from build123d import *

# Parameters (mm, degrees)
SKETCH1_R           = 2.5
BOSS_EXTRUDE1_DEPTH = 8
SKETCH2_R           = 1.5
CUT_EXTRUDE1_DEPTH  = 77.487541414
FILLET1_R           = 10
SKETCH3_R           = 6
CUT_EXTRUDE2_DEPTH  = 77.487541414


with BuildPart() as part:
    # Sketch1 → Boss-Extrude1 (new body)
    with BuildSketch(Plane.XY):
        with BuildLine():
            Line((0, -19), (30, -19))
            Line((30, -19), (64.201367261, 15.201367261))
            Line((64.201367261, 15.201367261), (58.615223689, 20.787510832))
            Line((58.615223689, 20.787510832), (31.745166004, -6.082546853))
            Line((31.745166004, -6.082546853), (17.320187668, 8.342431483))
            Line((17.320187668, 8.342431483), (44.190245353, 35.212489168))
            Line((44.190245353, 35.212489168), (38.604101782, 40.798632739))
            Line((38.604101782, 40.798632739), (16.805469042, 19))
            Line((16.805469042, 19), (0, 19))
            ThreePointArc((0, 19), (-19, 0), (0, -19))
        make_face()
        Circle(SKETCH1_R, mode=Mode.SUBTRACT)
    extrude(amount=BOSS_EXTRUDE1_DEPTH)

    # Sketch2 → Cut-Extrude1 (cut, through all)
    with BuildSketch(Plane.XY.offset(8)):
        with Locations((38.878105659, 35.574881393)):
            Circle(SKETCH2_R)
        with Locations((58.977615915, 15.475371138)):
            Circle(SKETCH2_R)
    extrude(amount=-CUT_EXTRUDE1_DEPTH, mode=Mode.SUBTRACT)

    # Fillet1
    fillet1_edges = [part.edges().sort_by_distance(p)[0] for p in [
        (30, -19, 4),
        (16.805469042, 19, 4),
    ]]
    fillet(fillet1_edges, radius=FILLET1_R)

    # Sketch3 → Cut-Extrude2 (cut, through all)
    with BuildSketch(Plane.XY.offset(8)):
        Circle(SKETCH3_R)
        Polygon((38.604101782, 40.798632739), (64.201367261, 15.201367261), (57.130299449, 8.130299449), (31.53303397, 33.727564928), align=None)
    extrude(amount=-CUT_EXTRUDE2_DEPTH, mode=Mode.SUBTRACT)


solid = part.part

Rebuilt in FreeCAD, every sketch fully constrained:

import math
import FreeCAD as App
import Part
import Sketcher
Q = App.Units.Quantity


def edges_at(feature, points):
    """Names of the edges that pass closest to the given points."""
    edges = feature.Shape.Edges
    near = lambda p: min(range(len(edges)), key=lambda i: edges[i].distToShape(Part.Vertex(*p))[0])
    return sorted({f"Edge{near(p) + 1}" for p in points})


def add_polygon(sketch, points):
    """Adds a closed chain of lines whose ends are joined by coincident constraints."""
    first, n = sketch.GeometryCount, len(points)
    for a, b in zip(points, points[1:] + points[:1]):
        sketch.addGeometry(Part.LineSegment(App.Vector(*a, 0), App.Vector(*b, 0)), False)
    for i in range(n):
        sketch.addConstraint(Sketcher.Constraint("Coincident", first + i, 2, first + (i + 1) % n, 1))

doc = App.newDocument("Part")
params = doc.addObject("Spreadsheet::Sheet", "Params")
for row, (alias, value) in enumerate([
    ("sketch1_diameter", "5 mm"),
    ("sketch1_radius", "19 mm"),
    ("sketch1_width", "30 mm"),
    ("sketch1_length", "38 mm"),
    ("sketch1_length2", "7.9 mm"),
    ("pad1_length", "8 mm"),
    ("sketch2_diameter", "3 mm"),
    ("fillet_radius", "10 mm"),
    ("sketch3_diameter", "12 mm"),
    ("sketch3_length", "10 mm"),
    ("sketch3_length2", "36.2 mm"),
], start=1):
    params.set(f"A{row}", alias)
    params.set(f"B{row}", "=" + value)
    params.setAlias(f"B{row}", alias)

body = doc.addObject("PartDesign::Body", "Body")

sketch1 = body.newObject("Sketcher::SketchObject", "Sketch")
sketch1.AttachmentSupport = (doc.getObject("XY_Plane"), [""])
sketch1.MapMode = "FlatFace"
sketch1.addGeometry([
    Part.LineSegment(App.Vector(0, -19, 0), App.Vector(30, -19, 0)),
    Part.LineSegment(App.Vector(30, -19, 0), App.Vector(64.2, 15.2, 0)),
    Part.LineSegment(App.Vector(64.2, 15.2, 0), App.Vector(58.6, 20.8, 0)),
    Part.LineSegment(App.Vector(58.6, 20.8, 0), App.Vector(31.7, -6.1, 0)),
    Part.LineSegment(App.Vector(31.7, -6.1, 0), App.Vector(17.3, 8.3, 0)),
    Part.LineSegment(App.Vector(17.3, 8.3, 0), App.Vector(44.2, 35.2, 0)),
    Part.LineSegment(App.Vector(44.2, 35.2, 0), App.Vector(38.6, 40.8, 0)),
    Part.LineSegment(App.Vector(38.6, 40.8, 0), App.Vector(16.8, 19, 0)),
    Part.LineSegment(App.Vector(16.8, 19, 0), App.Vector(0, 19, 0)),
    Part.ArcOfCircle(Part.Circle(App.Vector(0, 0, 0), App.Vector(0, 0, 1), 19), math.radians(90), math.radians(270)),
    Part.Circle(App.Vector(0, 0, 0), App.Vector(0, 0, 1), 2.5),
], False)
sketch1.addConstraint([
    Sketcher.Constraint("Coincident", 0, 2, 1, 1),
    Sketcher.Constraint("Coincident", 1, 2, 2, 1),
    Sketcher.Constraint("Coincident", 2, 2, 3, 1),
    Sketcher.Constraint("Coincident", 3, 2, 4, 1),
    Sketcher.Constraint("Coincident", 4, 2, 5, 1),
    Sketcher.Constraint("Coincident", 5, 2, 6, 1),
    Sketcher.Constraint("Coincident", 6, 2, 7, 1),
    Sketcher.Constraint("Coincident", 7, 2, 8, 1),
    Sketcher.Constraint("Tangent", 8, 2, 9, 1),
    Sketcher.Constraint("Tangent", 9, 2, 0, 1),
    Sketcher.Constraint("Horizontal", 0),
    Sketcher.Constraint("Horizontal", 8),
    Sketcher.Constraint("Coincident", 9, 3, -1, 1),
    Sketcher.Constraint("Coincident", 10, 3, -1, 1),
    Sketcher.Constraint("Perpendicular", 1, 2),
    Sketcher.Constraint("Perpendicular", 2, 3),
    Sketcher.Constraint("Perpendicular", 3, 4),
    Sketcher.Constraint("Perpendicular", 4, 5),
    Sketcher.Constraint("Perpendicular", 5, 6),
    Sketcher.Constraint("Perpendicular", 6, 7),
    Sketcher.Constraint("Equal", 3, 5),
    Sketcher.Constraint("Equal", 2, 6),
    Sketcher.Constraint("Diameter", 10, Q("5 mm")),
    Sketcher.Constraint("Radius", 9, Q("19 mm")),
    Sketcher.Constraint("DistanceX", 0, 1, 0, 2, Q("30 mm")),
    Sketcher.Constraint("Angle", 1, Q("45 deg")),
    Sketcher.Constraint("Distance", 3, Q("38 mm")),
    Sketcher.Constraint("Distance", 2, Q("7.9 mm")),
    Sketcher.Constraint("Distance", 4, Q("20.4 mm")),
    Sketcher.Constraint("DistanceX", -1, 1, 6, 2, Q("38.604102 mm")),
])
sketch1.setExpression("Constraints[22]", "Params.sketch1_diameter")
sketch1.setExpression("Constraints[23]", "Params.sketch1_radius")
sketch1.setExpression("Constraints[24]", "Params.sketch1_width")
sketch1.setExpression("Constraints[26]", "Params.sketch1_length")
sketch1.setExpression("Constraints[27]", "Params.sketch1_length2")
pad1 = body.newObject("PartDesign::Pad", "Pad")
pad1.Profile = sketch1
pad1.setExpression("Length", "Params.pad1_length")

sketch2 = body.newObject("Sketcher::SketchObject", "Sketch001")
sketch2.AttachmentSupport = (doc.getObject("XY_Plane"), [""])
sketch2.MapMode = "FlatFace"
sketch2.AttachmentOffset = App.Placement(App.Vector(0, 0, 8), App.Rotation())
sketch2.addGeometry([
    Part.Circle(App.Vector(38.9, 35.6, 0), App.Vector(0, 0, 1), 1.5),
    Part.Circle(App.Vector(59, 15.5, 0), App.Vector(0, 0, 1), 1.5),
], False)
sketch2.addConstraint([
    Sketcher.Constraint("Equal", 0, 1),
    Sketcher.Constraint("Diameter", 0, Q("3 mm")),
    Sketcher.Constraint("DistanceY", -1, 1, 0, 3, Q("35.574881 mm")),
    Sketcher.Constraint("DistanceY", -1, 1, 1, 3, Q("15.475371 mm")),
    Sketcher.Constraint("DistanceX", 0, 3, 1, 3, Q("20.09951 mm")),
    Sketcher.Constraint("DistanceX", -1, 1, 0, 3, Q("38.878106 mm")),
])
sketch2.setExpression("Constraints[1]", "Params.sketch2_diameter")
pocket1 = body.newObject("PartDesign::Pocket", "Pocket")
pocket1.Profile = sketch2
pocket1.Type = "ThroughAll"
doc.recompute()

fillet = body.newObject("PartDesign::Fillet", "Fillet")
fillet.Base = (pocket1, edges_at(pocket1, [(30, -19, 4), (16.805, 19, 4)]))
fillet.setExpression("Radius", "Params.fillet_radius")

sketch3 = body.newObject("Sketcher::SketchObject", "Sketch002")
sketch3.AttachmentSupport = (doc.getObject("XY_Plane"), [""])
sketch3.MapMode = "FlatFace"
sketch3.AttachmentOffset = App.Placement(App.Vector(0, 0, 8), App.Rotation())
sketch3.addGeometry(Part.Circle(App.Vector(0, 0, 0), App.Vector(0, 0, 1), 6), False)
add_polygon(sketch3, [(64, 15), (39, 41), (32, 34), (57, 8)])
sketch3.addConstraint([
    Sketcher.Constraint("Coincident", 0, 3, -1, 1),
    Sketcher.Constraint("Perpendicular", 1, 2),
    Sketcher.Constraint("Perpendicular", 2, 3),
    Sketcher.Constraint("Perpendicular", 3, 4),
    Sketcher.Constraint("Diameter", 0, Q("12 mm")),
    Sketcher.Constraint("Angle", 1, Q("135 deg")),
    Sketcher.Constraint("Distance", 2, Q("10 mm")),
    Sketcher.Constraint("Distance", 1, Q("36.2 mm")),
    Sketcher.Constraint("DistanceX", -1, 1, 1, 2, Q("38.604102 mm")),
    Sketcher.Constraint("DistanceY", -1, 1, 3, 2, Q("8.130299 mm")),
])
sketch3.setExpression("Constraints[8]", "Params.sketch3_diameter")
sketch3.setExpression("Constraints[10]", "Params.sketch3_length")
sketch3.setExpression("Constraints[11]", "Params.sketch3_length2")
pocket2 = body.newObject("PartDesign::Pocket", "Pocket001")
pocket2.Profile = sketch3
pocket2.Type = "ThroughAll"

doc.recompute()
